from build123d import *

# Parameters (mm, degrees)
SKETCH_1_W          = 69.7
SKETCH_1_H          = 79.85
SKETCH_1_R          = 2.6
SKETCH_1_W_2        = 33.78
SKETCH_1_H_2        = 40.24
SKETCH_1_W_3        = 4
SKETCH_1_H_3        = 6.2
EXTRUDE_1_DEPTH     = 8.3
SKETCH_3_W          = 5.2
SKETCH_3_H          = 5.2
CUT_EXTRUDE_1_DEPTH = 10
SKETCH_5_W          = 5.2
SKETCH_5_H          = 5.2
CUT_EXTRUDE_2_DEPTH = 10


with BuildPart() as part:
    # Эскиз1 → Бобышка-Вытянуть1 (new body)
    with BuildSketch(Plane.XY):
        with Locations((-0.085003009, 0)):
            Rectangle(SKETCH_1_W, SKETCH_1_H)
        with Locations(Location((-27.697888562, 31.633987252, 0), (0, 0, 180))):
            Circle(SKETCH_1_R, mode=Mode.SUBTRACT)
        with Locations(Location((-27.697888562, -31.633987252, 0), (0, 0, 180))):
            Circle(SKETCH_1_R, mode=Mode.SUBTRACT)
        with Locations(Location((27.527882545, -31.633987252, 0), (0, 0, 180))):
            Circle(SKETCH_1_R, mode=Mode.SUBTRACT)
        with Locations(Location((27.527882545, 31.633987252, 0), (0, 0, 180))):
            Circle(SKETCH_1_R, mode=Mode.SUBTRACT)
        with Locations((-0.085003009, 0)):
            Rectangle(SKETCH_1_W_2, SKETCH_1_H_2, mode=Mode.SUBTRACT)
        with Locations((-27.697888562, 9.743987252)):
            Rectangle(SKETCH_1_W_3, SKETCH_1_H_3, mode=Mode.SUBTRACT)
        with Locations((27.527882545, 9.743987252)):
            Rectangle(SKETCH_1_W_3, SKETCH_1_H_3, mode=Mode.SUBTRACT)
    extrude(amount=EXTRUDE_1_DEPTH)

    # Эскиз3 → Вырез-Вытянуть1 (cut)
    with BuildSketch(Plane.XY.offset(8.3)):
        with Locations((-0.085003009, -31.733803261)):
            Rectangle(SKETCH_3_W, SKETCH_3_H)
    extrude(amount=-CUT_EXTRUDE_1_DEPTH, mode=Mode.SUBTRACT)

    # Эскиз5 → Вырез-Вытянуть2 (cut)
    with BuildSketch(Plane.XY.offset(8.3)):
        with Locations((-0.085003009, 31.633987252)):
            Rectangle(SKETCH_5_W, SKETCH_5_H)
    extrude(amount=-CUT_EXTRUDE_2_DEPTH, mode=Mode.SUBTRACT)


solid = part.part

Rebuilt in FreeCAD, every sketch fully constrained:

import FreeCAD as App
import Part
import Sketcher
from FreeCAD import Vector

doc = App.newDocument("Part")
body = doc.addObject("PartDesign::Body", "Body")

# Sketch on XY plane
sketch1 = body.newObject("Sketcher::SketchObject", "Sketch")
sketch1.AttachmentSupport = (doc.getObject("XY_Plane"), [""])
sketch1.MapMode = "FlatFace"
sketch1.addGeometry([
    Part.LineSegment(Vector(-34.9, 39.9, 0), Vector(-34.9, -39.9, 0)),  # 0
    Part.LineSegment(Vector(-34.9, -39.9, 0), Vector(34.8, -39.9, 0)),  # 1
    Part.LineSegment(Vector(34.8, -39.9, 0), Vector(34.8, 39.9, 0)),  # 2
    Part.LineSegment(Vector(34.8, 39.9, 0), Vector(-34.9, 39.9, 0)),  # 3
    Part.Circle(Vector(-27.7, -31.6, 0), Vector(0, 0, 1), 2.6),  # 4
    Part.Circle(Vector(27.5, -31.6, 0), Vector(0, 0, 1), 2.6),  # 5
    Part.LineSegment(Vector(-25.7, 6.6, 0), Vector(-29.7, 6.6, 0)),  # 6
    Part.LineSegment(Vector(-29.7, 6.6, 0), Vector(-29.7, 12.8, 0)),  # 7
    Part.LineSegment(Vector(-29.7, 12.8, 0), Vector(-25.7, 12.8, 0)),  # 8
    Part.LineSegment(Vector(-25.7, 12.8, 0), Vector(-25.7, 6.6, 0)),  # 9
    Part.LineSegment(Vector(16.8, -20.1, 0), Vector(-17, -20.1, 0)),  # 10
    Part.LineSegment(Vector(-17, -20.1, 0), Vector(-17, 20.1, 0)),  # 11
    Part.LineSegment(Vector(-17, 20.1, 0), Vector(16.8, 20.1, 0)),  # 12
    Part.LineSegment(Vector(16.8, 20.1, 0), Vector(16.8, -20.1, 0)),  # 13
    Part.Circle(Vector(-27.7, 31.6, 0), Vector(0, 0, 1), 2.6),  # 14
    Part.LineSegment(Vector(29.5, 6.6, 0), Vector(25.5, 6.6, 0)),  # 15
    Part.LineSegment(Vector(25.5, 6.6, 0), Vector(25.5, 12.8, 0)),  # 16
    Part.LineSegment(Vector(25.5, 12.8, 0), Vector(29.5, 12.8, 0)),  # 17
    Part.LineSegment(Vector(29.5, 12.8, 0), Vector(29.5, 6.6, 0)),  # 18
    Part.Circle(Vector(27.5, 31.6, 0), Vector(0, 0, 1), 2.6),  # 19
], False)
sketch1.addConstraint([
    Sketcher.Constraint("Coincident", 0, 2, 1, 1),
    Sketcher.Constraint("Coincident", 1, 2, 2, 1),
    Sketcher.Constraint("Coincident", 2, 2, 3, 1),
    Sketcher.Constraint("Coincident", 3, 2, 0, 1),
    Sketcher.Constraint("Coincident", 6, 2, 7, 1),
    Sketcher.Constraint("Coincident", 7, 2, 8, 1),
    Sketcher.Constraint("Coincident", 8, 2, 9, 1),
    Sketcher.Constraint("Coincident", 9, 2, 6, 1),
    Sketcher.Constraint("Coincident", 10, 2, 11, 1),
    Sketcher.Constraint("Coincident", 11, 2, 12, 1),
    Sketcher.Constraint("Coincident", 12, 2, 13, 1),
    Sketcher.Constraint("Coincident", 13, 2, 10, 1),
    Sketcher.Constraint("Coincident", 15, 2, 16, 1),
    Sketcher.Constraint("Coincident", 16, 2, 17, 1),
    Sketcher.Constraint("Coincident", 17, 2, 18, 1),
    Sketcher.Constraint("Coincident", 18, 2, 15, 1),
    Sketcher.Constraint("Vertical", 0),
    Sketcher.Constraint("Horizontal", 1),
    Sketcher.Constraint("Vertical", 2),
    Sketcher.Constraint("Horizontal", 3),
    Sketcher.Constraint("Horizontal", 6),
    Sketcher.Constraint("Vertical", 7),
    Sketcher.Constraint("Horizontal", 8),
    Sketcher.Constraint("Vertical", 9),
    Sketcher.Constraint("Horizontal", 10),
    Sketcher.Constraint("Vertical", 11),
    Sketcher.Constraint("Horizontal", 12),
    Sketcher.Constraint("Vertical", 13),
    Sketcher.Constraint("Horizontal", 15),
    Sketcher.Constraint("Vertical", 16),
    Sketcher.Constraint("Horizontal", 17),
    Sketcher.Constraint("Vertical", 18),
    Sketcher.Constraint("Equal", 4, 5),
    Sketcher.Constraint("Equal", 5, 14),
    Sketcher.Constraint("Equal", 14, 19),
    Sketcher.Constraint("Symmetric", 4, 3, 14, 3, -1),
    Sketcher.Constraint("Symmetric", 5, 3, 19, 3, -1),
    Sketcher.Constraint("Horizontal", 4, 3, 5, 3),
    Sketcher.Constraint("Horizontal", 9, 2, 15, 2),
    Sketcher.Constraint("Horizontal", 8, 2, 16, 2),
    Sketcher.Constraint("Equal", 8, 15),
    Sketcher.Constraint("Diameter", 4, 5.2),
    Sketcher.Constraint("DistanceX", 6, 2, 6, 1, 4.0),
    Sketcher.Constraint("DistanceX", 1, 1, 1, 2, 69.7),
    Sketcher.Constraint("DistanceY", 7, 1, 7, 2, 6.2),
    Sketcher.Constraint("DistanceX", 6, 2, 14, 3, 2.0),
    Sketcher.Constraint("DistanceX", 15, 2, 19, 3, 2.0),
    Sketcher.Constraint("DistanceX", 10, 2, 10, 1, 33.78),
    Sketcher.Constraint("DistanceY", 0, 2, 0, 1, 79.85),
    Sketcher.Constraint("DistanceY", 11, 1, 11, 2, 40.24),
    Sketcher.Constraint("DistanceY", 10, 2, -1, 1, 20.12),
    Sketcher.Constraint("DistanceY", 6, 2, 14, 3, 24.99),
    Sketcher.Constraint("DistanceX", 0, 2, 10, 2, 17.96),
    Sketcher.Constraint("DistanceY", 0, 2, -1, 1, 39.925),
    Sketcher.Constraint("DistanceX", 4, 3, -1, 1, 27.697889),
    Sketcher.Constraint("DistanceX", 4, 3, 5, 3, 55.225771),
    Sketcher.Constraint("DistanceY", 4, 3, -1, 1, 31.633987),
    Sketcher.Constraint("DistanceX", 0, 2, -1, 1, 34.935003),
])
pad1 = body.newObject("PartDesign::Pad", "Pad")
pad1.Profile = sketch1
pad1.Length = 8.3

# Sketch on XY plane
sketch2 = body.newObject("Sketcher::SketchObject", "Sketch001")
sketch2.AttachmentSupport = (doc.getObject("XY_Plane"), [""])
sketch2.MapMode = "FlatFace"
sketch2.AttachmentOffset = App.Placement(Vector(0, 0, 8.3), App.Rotation())
sketch2.addGeometry([
    Part.LineSegment(Vector(-3, -29, 0), Vector(-3, -34, 0)),
    Part.LineSegment(Vector(-3, -34, 0), Vector(3, -34, 0)),
    Part.LineSegment(Vector(3, -34, 0), Vector(3, -29, 0)),
    Part.LineSegment(Vector(3, -29, 0), Vector(-3, -29, 0)),
], False)
sketch2.addConstraint([
    Sketcher.Constraint("Coincident", 0, 2, 1, 1),
    Sketcher.Constraint("Coincident", 1, 2, 2, 1),
    Sketcher.Constraint("Coincident", 2, 2, 3, 1),
    Sketcher.Constraint("Coincident", 3, 2, 0, 1),
    Sketcher.Constraint("Vertical", 0),
    Sketcher.Constraint("Horizontal", 1),
    Sketcher.Constraint("Vertical", 2),
    Sketcher.Constraint("Horizontal", 3),
    Sketcher.Constraint("Equal", 3, 0),
    Sketcher.Constraint("DistanceX", 1, 1, 1, 2, 5.2),
    Sketcher.Constraint("DistanceX", 0, 2, -1, 1, 2.685003),
    Sketcher.Constraint("DistanceY", 0, 2, -1, 1, 34.333803),
])
pocket1 = body.newObject("PartDesign::Pocket", "Pocket")
pocket1.Profile = sketch2
pocket1.Length = 10

# Sketch on XY plane
sketch3 = body.newObject("Sketcher::SketchObject", "Sketch002")
sketch3.AttachmentSupport = (doc.getObject("XY_Plane"), [""])
sketch3.MapMode = "FlatFace"
sketch3.AttachmentOffset = App.Placement(Vector(0, 0, 8.3), App.Rotation())
sketch3.addGeometry([
    Part.LineSegment(Vector(-3, 34, 0), Vector(-3, 29, 0)),
    Part.LineSegment(Vector(-3, 29, 0), Vector(3, 29, 0)),
    Part.LineSegment(Vector(3, 29, 0), Vector(3, 34, 0)),
    Part.LineSegment(Vector(3, 34, 0), Vector(-3, 34, 0)),
], False)
sketch3.addConstraint([
    Sketcher.Constraint("Coincident", 0, 2, 1, 1),
    Sketcher.Constraint("Coincident", 1, 2, 2, 1),
    Sketcher.Constraint("Coincident", 2, 2, 3, 1),
    Sketcher.Constraint("Coincident", 3, 2, 0, 1),
    Sketcher.Constraint("Vertical", 0),
    Sketcher.Constraint("Horizontal", 1),
    Sketcher.Constraint("Vertical", 2),
    Sketcher.Constraint("Horizontal", 3),
    Sketcher.Constraint("Equal", 3, 0),
    Sketcher.Constraint("DistanceX", 1, 1, 1, 2, 5.2),
    Sketcher.Constraint("DistanceX", 0, 2, -1, 1, 2.685003),
    Sketcher.Constraint("DistanceY", -1, 1, 0, 2, 29.033987),
])
pocket2 = body.newObject("PartDesign::Pocket", "Pocket001")
pocket2.Profile = sketch3
pocket2.Length = 10

doc.recompute()
